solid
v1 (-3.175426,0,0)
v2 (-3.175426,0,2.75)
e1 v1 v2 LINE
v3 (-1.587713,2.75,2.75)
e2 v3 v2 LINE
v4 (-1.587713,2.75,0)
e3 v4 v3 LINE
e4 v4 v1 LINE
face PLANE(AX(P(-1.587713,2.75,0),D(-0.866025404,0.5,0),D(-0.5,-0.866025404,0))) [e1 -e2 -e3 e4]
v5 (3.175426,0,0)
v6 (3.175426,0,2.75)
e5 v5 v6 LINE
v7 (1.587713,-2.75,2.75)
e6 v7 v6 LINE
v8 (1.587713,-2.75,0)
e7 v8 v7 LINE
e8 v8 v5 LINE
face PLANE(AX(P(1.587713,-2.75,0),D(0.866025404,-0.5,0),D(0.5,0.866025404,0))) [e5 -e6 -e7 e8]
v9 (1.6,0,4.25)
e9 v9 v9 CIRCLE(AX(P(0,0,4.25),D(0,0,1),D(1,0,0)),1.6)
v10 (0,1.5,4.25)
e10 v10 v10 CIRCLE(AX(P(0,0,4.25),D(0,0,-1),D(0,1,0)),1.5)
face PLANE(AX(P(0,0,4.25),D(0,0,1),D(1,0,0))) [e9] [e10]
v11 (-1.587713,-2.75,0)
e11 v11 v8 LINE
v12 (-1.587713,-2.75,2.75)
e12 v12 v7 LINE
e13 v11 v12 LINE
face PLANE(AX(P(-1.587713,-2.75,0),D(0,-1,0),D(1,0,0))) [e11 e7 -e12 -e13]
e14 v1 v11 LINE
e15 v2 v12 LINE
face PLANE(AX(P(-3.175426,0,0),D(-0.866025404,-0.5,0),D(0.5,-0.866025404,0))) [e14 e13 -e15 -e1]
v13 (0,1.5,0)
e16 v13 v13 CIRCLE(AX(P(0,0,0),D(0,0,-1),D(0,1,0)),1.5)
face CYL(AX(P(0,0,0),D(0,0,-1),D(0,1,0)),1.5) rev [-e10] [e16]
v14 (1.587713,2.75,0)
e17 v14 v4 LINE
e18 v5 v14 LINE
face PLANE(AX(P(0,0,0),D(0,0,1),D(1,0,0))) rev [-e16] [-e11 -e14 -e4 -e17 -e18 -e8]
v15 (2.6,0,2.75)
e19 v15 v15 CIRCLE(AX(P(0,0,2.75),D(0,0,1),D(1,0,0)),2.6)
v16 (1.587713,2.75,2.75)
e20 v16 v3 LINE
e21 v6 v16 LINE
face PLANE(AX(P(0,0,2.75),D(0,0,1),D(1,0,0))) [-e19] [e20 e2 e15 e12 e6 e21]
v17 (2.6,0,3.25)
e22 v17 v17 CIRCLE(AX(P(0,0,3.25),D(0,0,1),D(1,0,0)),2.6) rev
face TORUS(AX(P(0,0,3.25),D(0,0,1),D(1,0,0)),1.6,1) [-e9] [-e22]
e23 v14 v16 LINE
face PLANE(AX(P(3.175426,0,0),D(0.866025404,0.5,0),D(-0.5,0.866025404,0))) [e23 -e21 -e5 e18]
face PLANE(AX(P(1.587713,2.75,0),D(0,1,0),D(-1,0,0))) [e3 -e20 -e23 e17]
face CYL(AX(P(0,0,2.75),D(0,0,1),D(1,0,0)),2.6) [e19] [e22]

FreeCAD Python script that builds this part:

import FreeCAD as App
import Part
import Sketcher
Q = App.Units.Quantity


def edges_at(feature, points):
    """Names of the edges that pass closest to the given points."""
    edges = feature.Shape.Edges
    near = lambda p: min(range(len(edges)), key=lambda i: edges[i].distToShape(Part.Vertex(*p))[0])
    return sorted({f"Edge{near(p) + 1}" for p in points})


def add_polygon(sketch, points):
    """Adds a closed chain of lines whose ends are joined by coincident constraints."""
    first, n = sketch.GeometryCount, len(points)
    for a, b in zip(points, points[1:] + points[:1]):
        sketch.addGeometry(Part.LineSegment(App.Vector(*a, 0), App.Vector(*b, 0)), False)
    for i in range(n):
        sketch.addConstraint(Sketcher.Constraint("Coincident", first + i, 2, first + (i + 1) % n, 1))

doc = App.newDocument("Part")
body = doc.addObject("PartDesign::Body", "Body")

# Sketch on XY plane
sketch1 = body.newObject("Sketcher::SketchObject", "Sketch")
sketch1.AttachmentSupport = (doc.getObject("XY_Plane"), [""])
sketch1.MapMode = "FlatFace"
sketch1.AttachmentOffset = App.Placement(App.Vector(0, 0, 2.75), App.Rotation())
add_polygon(sketch1, [(1.6, -2.8), (3.2, 0), (1.6, 2.8), (-1.6, 2.8), (-3.2, 0), (-1.6, -2.8)])  # lines 0-5
sketch1.addConstraint(Sketcher.Constraint("Horizontal", 2))
sketch1.addConstraint(Sketcher.Constraint("Horizontal", 5))
sketch1.addConstraint(Sketcher.Constraint("Symmetric", 0, 2, 3, 2, -1, 1))
sketch1.addConstraint(Sketcher.Constraint("Symmetric", 1, 2, 4, 2, -1, 1))
sketch1.addConstraint(Sketcher.Constraint("PointOnObject", 0, 2, -1))
sketch1.addConstraint(Sketcher.Constraint("Parallel", 0, 3))
sketch1.addConstraint(Sketcher.Constraint("Vertical", 2, 2, 4, 2))
sketch1.addConstraint(Sketcher.Constraint("Angle", 0, Q("60 deg")))
sketch1.addConstraint(Sketcher.Constraint("DistanceY", 4, 2, 2, 2, 5.5))
sketch1.addConstraint(Sketcher.Constraint("DistanceX", 2, 2, 2, 1, 3.175426))
pad1 = body.newObject("PartDesign::Pad", "Pad")
pad1.Profile = sketch1
pad1.Length = 2.75
pad1.Reversed = True

# Sketch on XZ plane
sketch2 = body.newObject("Sketcher::SketchObject", "Sketch001")
sketch2.AttachmentSupport = (doc.getObject("XZ_Plane"), [""])
sketch2.MapMode = "FlatFace"
add_polygon(sketch2, [(0, 2.8), (0, 4.2), (2.6, 4.2), (2.6, 2.8)])  # lines 0-3
sketch2.addConstraint(Sketcher.Constraint("Vertical", 0))
sketch2.addConstraint(Sketcher.Constraint("Horizontal", 1))
sketch2.addConstraint(Sketcher.Constraint("Vertical", 2))
sketch2.addConstraint(Sketcher.Constraint("Horizontal", 3))
sketch2.addConstraint(Sketcher.Constraint("PointOnObject", 0, 2, -2))
sketch2.addConstraint(Sketcher.Constraint("DistanceX", 1, 1, 1, 2, 2.6))
sketch2.addConstraint(Sketcher.Constraint("DistanceY", 0, 1, 0, 2, 1.5))
sketch2.addConstraint(Sketcher.Constraint("DistanceY", -1, 1, 0, 2, 4.25))
revolution = body.newObject("PartDesign::Revolution", "Revolution")
revolution.Profile = sketch2
revolution.ReferenceAxis = (sketch2, ["V_Axis"])
revolution.Angle = 360

# Sketch on XY plane
sketch3 = body.newObject("Sketcher::SketchObject", "Sketch002")
sketch3.AttachmentSupport = (doc.getObject("XY_Plane"), [""])
sketch3.MapMode = "FlatFace"
sketch3.addGeometry(Part.Circle(App.Vector(0, 0, 0), App.Vector(0, 0, 1), 1.5), False)
sketch3.addConstraint(Sketcher.Constraint("Coincident", 0, 3, -1, 1))
sketch3.addConstraint(Sketcher.Constraint("Diameter", 0, 3.0))
doc.recompute()
hole = body.newObject("PartDesign::Hole", "Hole")
hole.Profile = sketch3
hole.ThreadType = "None"
hole.Diameter = 3
hole.DepthType = "Dimension"
hole.Depth = 4.25
hole.DrillPoint = "Flat"
hole.Reversed = True
doc.recompute()

fillet = body.newObject("PartDesign::Fillet", "Fillet")
fillet.Base = (hole, edges_at(hole, [(-2.6, 0, 4.25)]))
fillet.Radius = 1

doc.recompute()
